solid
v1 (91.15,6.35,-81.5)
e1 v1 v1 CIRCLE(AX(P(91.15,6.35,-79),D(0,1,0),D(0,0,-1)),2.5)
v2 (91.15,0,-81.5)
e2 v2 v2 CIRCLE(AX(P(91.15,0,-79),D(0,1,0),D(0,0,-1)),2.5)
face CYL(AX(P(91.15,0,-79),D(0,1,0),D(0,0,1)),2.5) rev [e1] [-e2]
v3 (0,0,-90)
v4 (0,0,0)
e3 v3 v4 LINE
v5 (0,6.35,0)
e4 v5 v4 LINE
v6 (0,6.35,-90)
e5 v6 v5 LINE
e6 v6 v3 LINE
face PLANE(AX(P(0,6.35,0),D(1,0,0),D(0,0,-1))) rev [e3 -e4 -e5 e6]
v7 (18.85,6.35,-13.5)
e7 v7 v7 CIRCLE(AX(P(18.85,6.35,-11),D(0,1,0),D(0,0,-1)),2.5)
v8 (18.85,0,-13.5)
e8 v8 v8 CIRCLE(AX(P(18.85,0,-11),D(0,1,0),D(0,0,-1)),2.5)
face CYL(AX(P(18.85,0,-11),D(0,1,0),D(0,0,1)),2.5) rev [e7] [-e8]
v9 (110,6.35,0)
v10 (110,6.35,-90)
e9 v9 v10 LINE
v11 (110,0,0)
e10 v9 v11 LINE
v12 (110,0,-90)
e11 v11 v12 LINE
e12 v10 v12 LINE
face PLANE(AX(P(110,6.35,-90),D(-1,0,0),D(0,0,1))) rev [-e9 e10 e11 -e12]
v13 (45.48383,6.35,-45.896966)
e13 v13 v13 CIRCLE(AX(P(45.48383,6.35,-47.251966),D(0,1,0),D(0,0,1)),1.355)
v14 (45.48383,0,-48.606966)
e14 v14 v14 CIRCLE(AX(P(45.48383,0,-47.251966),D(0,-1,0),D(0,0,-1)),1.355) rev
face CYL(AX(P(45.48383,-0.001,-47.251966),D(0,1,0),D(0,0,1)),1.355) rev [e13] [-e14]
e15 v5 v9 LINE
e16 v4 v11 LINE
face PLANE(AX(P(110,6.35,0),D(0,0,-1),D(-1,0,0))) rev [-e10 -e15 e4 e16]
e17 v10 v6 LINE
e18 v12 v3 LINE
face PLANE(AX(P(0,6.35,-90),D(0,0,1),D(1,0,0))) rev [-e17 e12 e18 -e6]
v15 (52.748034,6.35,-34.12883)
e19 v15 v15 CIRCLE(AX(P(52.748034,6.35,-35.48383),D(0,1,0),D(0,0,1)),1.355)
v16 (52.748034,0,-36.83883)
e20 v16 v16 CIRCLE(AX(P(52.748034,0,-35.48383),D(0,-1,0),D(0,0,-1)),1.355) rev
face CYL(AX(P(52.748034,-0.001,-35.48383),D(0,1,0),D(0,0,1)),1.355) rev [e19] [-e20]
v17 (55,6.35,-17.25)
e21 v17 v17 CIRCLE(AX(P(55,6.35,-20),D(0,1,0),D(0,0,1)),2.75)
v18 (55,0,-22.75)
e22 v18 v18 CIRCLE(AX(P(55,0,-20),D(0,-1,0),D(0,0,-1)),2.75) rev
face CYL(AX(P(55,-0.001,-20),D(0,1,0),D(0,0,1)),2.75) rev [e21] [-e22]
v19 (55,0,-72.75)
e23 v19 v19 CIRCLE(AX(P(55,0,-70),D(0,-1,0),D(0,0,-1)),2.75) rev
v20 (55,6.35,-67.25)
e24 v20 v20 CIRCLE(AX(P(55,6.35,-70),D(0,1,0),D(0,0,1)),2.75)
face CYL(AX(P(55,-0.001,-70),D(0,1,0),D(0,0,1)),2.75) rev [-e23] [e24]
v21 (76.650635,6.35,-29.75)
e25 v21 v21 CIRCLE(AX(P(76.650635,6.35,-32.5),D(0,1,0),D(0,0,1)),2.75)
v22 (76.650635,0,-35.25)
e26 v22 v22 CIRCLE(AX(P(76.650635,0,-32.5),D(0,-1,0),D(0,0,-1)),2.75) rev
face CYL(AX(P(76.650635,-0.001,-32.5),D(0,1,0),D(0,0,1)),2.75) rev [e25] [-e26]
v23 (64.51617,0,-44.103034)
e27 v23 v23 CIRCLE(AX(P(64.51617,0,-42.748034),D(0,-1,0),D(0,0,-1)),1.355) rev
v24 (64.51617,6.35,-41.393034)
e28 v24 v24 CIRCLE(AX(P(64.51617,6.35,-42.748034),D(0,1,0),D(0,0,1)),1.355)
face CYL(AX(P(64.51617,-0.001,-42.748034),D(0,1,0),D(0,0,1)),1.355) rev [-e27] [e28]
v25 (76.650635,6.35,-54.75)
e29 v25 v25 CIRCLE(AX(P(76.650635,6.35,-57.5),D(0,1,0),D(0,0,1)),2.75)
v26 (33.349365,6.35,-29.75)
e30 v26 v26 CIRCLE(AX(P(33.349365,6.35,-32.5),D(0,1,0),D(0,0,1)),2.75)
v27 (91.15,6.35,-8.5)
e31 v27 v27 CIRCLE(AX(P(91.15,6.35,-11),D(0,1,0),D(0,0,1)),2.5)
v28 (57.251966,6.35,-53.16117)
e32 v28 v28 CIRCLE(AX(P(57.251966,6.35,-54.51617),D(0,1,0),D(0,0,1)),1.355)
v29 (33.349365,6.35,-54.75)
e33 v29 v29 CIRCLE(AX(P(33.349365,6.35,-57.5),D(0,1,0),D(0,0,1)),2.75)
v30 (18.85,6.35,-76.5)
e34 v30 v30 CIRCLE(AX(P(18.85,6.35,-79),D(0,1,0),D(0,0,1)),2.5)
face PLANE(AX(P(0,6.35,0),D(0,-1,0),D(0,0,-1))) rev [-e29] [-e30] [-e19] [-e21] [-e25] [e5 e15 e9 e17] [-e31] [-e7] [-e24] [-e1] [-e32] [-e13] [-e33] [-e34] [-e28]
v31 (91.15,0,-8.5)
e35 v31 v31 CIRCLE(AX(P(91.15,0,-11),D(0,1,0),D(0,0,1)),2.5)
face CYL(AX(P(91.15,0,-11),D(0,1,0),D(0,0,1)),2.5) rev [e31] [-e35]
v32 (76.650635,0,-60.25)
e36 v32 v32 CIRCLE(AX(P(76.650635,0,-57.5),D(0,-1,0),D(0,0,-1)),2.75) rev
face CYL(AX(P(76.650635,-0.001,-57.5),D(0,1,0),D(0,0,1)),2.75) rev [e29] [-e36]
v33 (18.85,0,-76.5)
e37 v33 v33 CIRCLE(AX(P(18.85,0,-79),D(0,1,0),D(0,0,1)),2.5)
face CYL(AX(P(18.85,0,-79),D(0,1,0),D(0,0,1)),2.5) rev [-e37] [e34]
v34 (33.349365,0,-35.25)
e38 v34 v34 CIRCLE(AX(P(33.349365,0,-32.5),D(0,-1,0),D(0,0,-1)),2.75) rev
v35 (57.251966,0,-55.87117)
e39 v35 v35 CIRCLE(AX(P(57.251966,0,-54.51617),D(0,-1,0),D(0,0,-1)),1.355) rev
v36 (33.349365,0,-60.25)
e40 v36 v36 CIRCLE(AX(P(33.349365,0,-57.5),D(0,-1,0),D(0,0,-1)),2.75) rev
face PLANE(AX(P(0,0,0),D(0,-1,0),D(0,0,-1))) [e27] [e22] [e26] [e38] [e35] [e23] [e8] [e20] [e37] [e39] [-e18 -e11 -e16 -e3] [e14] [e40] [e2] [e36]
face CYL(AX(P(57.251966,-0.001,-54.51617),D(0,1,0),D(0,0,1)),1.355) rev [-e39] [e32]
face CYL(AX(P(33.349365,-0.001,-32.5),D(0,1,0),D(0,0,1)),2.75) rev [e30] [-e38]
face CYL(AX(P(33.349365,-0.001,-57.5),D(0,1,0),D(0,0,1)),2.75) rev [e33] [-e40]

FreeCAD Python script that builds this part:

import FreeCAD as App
import Part
import Sketcher
from FreeCAD import Vector

doc = App.newDocument("Part")
params = doc.addObject("Spreadsheet::Sheet", "Params")
for row, (alias, value) in enumerate([
    ("sketch1_width", "110 mm"),
    ("sketch1_height", "90 mm"),
    ("pad1_length", "6.35 mm"),
    ("sketch2_diameter", "5 mm"),
    ("sketch3_diameter", "5.5 mm"),
    ("sketch4_diameter", "5.5 mm"),
    ("sketch5_diameter", "5.5 mm"),
    ("sketch6_diameter", "5.5 mm"),
    ("sketch7_diameter", "5.5 mm"),
    ("sketch8_diameter", "5.5 mm"),
    ("sketch9_diameter", "2.71 mm"),
    ("sketch10_diameter", "2.71 mm"),
    ("sketch11_diameter", "2.71 mm"),
    ("sketch12_diameter", "2.71 mm"),
], start=1):
    params.set(f"A{row}", alias)
    params.set(f"B{row}", "=" + value)
    params.setAlias(f"B{row}", alias)

body = doc.addObject("PartDesign::Body", "Body")

# Sketch on XZ plane
sketch1 = doc.addObject("Sketcher::SketchObject", "Sketch")
body.addObject(sketch1)
sketch1.AttachmentSupport = (doc.XZ_Plane, [""])
sketch1.MapMode = "FlatFace"
sketch1.addGeometry([
    Part.LineSegment(Vector(0, -90, 0), Vector(0, 0, 0)),
    Part.LineSegment(Vector(0, 0, 0), Vector(110, 0, 0)),
    Part.LineSegment(Vector(110, 0, 0), Vector(110, -90, 0)),
    Part.LineSegment(Vector(110, -90, 0), Vector(0, -90, 0)),
], False)
sketch1.addConstraint([
    Sketcher.Constraint("Coincident", 0, 2, 1, 1),
    Sketcher.Constraint("Coincident", 1, 2, 2, 1),
    Sketcher.Constraint("Coincident", 2, 2, 3, 1),
    Sketcher.Constraint("Coincident", 3, 2, 0, 1),
    Sketcher.Constraint("Vertical", 0),
    Sketcher.Constraint("Horizontal", 1),
    Sketcher.Constraint("Vertical", 2),
    Sketcher.Constraint("Horizontal", 3),
    Sketcher.Constraint("Coincident", 0, 2, -1, 1),
    Sketcher.Constraint("DistanceX", 1, 1, 1, 2, 110.0),
    Sketcher.Constraint("DistanceY", 0, 1, 0, 2, 90.0),
])
sketch1.setExpression("Constraints[9]", "Params.sketch1_width")
sketch1.setExpression("Constraints[10]", "Params.sketch1_height")
pad1 = doc.addObject("PartDesign::Pad", "Pad")
body.addObject(pad1)
pad1.Profile = sketch1
pad1.setExpression("Length", "Params.pad1_length")
pad1.Reversed = True

# Sketch on XZ plane
sketch2 = doc.addObject("Sketcher::SketchObject", "Sketch001")
body.addObject(sketch2)
sketch2.AttachmentSupport = (doc.XZ_Plane, [""])
sketch2.MapMode = "FlatFace"
sketch2.AttachmentOffset = App.Placement(Vector(0, 0, -6.35), App.Rotation())
sketch2.addGeometry([
    Part.Circle(Vector(18.9, -79, 0), Vector(0, 0, 1), 2.5),
    Part.Circle(Vector(18.9, -11, 0), Vector(0, 0, 1), 2.5),
    Part.Circle(Vector(91.2, -11, 0), Vector(0, 0, 1), 2.5),
    Part.Circle(Vector(91.2, -79, 0), Vector(0, 0, 1), 2.5),
], False)
sketch2.addConstraint([
    Sketcher.Constraint("Equal", 0, 1),
    Sketcher.Constraint("Equal", 1, 2),
    Sketcher.Constraint("Equal", 2, 3),
    Sketcher.Constraint("Horizontal", 1, 3, 2, 3),
    Sketcher.Constraint("Horizontal", 0, 3, 3, 3),
    Sketcher.Constraint("Vertical", 0, 3, 1, 3),
    Sketcher.Constraint("Vertical", 2, 3, 3, 3),
    Sketcher.Constraint("Diameter", 0, 5.0),
    Sketcher.Constraint("DistanceY", 0, 3, -1, 1, 79.0),
    Sketcher.Constraint("DistanceY", 1, 3, -1, 1, 11.0),
    Sketcher.Constraint("DistanceX", 1, 3, 2, 3, 72.3),
    Sketcher.Constraint("DistanceX", -1, 1, 0, 3, 18.85),
])
sketch2.setExpression("Constraints[7]", "Params.sketch2_diameter")
pocket1 = doc.addObject("PartDesign::Pocket", "Pocket")
body.addObject(pocket1)
pocket1.Profile = sketch2
pocket1.Type = "ThroughAll"
pocket1.Reversed = True

# Sketch on XZ plane
sketch3 = doc.addObject("Sketcher::SketchObject", "Sketch002")
body.addObject(sketch3)
sketch3.AttachmentSupport = (doc.XZ_Plane, [""])
sketch3.MapMode = "FlatFace"
sketch3.AttachmentOffset = App.Placement(Vector(0, 0, -6.35), App.Rotation())
sketch3.addGeometry(Part.Circle(Vector(55, -70, 0), Vector(0, 0, 1), 2.8), False)
sketch3.addConstraint([
    Sketcher.Constraint("Diameter", 0, 5.5),
    Sketcher.Constraint("DistanceX", -1, 1, 0, 3, 55.0),
    Sketcher.Constraint("DistanceY", 0, 3, -1, 1, 70.0),
])
sketch3.setExpression("Constraints[0]", "Params.sketch3_diameter")
pocket2 = doc.addObject("PartDesign::Pocket", "Pocket001")
body.addObject(pocket2)
pocket2.Profile = sketch3
pocket2.Type = "UpToFirst"
pocket2.Reversed = True

# Sketch on XZ plane
sketch4 = doc.addObject("Sketcher::SketchObject", "Sketch003")
body.addObject(sketch4)
sketch4.AttachmentSupport = (doc.XZ_Plane, [""])
sketch4.MapMode = "FlatFace"
sketch4.AttachmentOffset = App.Placement(Vector(0, 0, -6.35), App.Rotation())
sketch4.addGeometry(Part.Circle(Vector(76.7, -57.5, 0), Vector(0, 0, 1), 2.8), False)
sketch4.addConstraint([
    Sketcher.Constraint("Diameter", 0, 5.5),
    Sketcher.Constraint("DistanceY", 0, 3, -1, 1, 57.5),
    Sketcher.Constraint("DistanceX", -1, 1, 0, 3, 76.650635),
])
sketch4.setExpression("Constraints[0]", "Params.sketch4_diameter")
pocket3 = doc.addObject("PartDesign::Pocket", "Pocket002")
body.addObject(pocket3)
pocket3.Profile = sketch4
pocket3.Type = "UpToFirst"
pocket3.Reversed = True

# Sketch on XZ plane
sketch5 = doc.addObject("Sketcher::SketchObject", "Sketch004")
body.addObject(sketch5)
sketch5.AttachmentSupport = (doc.XZ_Plane, [""])
sketch5.MapMode = "FlatFace"
sketch5.AttachmentOffset = App.Placement(Vector(0, 0, -6.35), App.Rotation())
sketch5.addGeometry(Part.Circle(Vector(76.7, -32.5, 0), Vector(0, 0, 1), 2.8), False)
sketch5.addConstraint([
    Sketcher.Constraint("Diameter", 0, 5.5),
    Sketcher.Constraint("DistanceY", 0, 3, -1, 1, 32.5),
    Sketcher.Constraint("DistanceX", -1, 1, 0, 3, 76.650635),
])
sketch5.setExpression("Constraints[0]", "Params.sketch5_diameter")
pocket4 = doc.addObject("PartDesign::Pocket", "Pocket003")
body.addObject(pocket4)
pocket4.Profile = sketch5
pocket4.Type = "UpToFirst"
pocket4.Reversed = True

# Sketch on XZ plane
sketch6 = doc.addObject("Sketcher::SketchObject", "Sketch005")
body.addObject(sketch6)
sketch6.AttachmentSupport = (doc.XZ_Plane, [""])
sketch6.MapMode = "FlatFace"
sketch6.AttachmentOffset = App.Placement(Vector(0, 0, -6.35), App.Rotation())
sketch6.addGeometry(Part.Circle(Vector(55, -20, 0), Vector(0, 0, 1), 2.8), False)
sketch6.addConstraint([
    Sketcher.Constraint("Diameter", 0, 5.5),
    Sketcher.Constraint("DistanceX", -1, 1, 0, 3, 55.0),
    Sketcher.Constraint("DistanceY", 0, 3, -1, 1, 20.0),
])
sketch6.setExpression("Constraints[0]", "Params.sketch6_diameter")
pocket5 = doc.addObject("PartDesign::Pocket", "Pocket004")
body.addObject(pocket5)
pocket5.Profile = sketch6
pocket5.Type = "UpToFirst"
pocket5.Reversed = True

# Sketch on XZ plane
sketch7 = doc.addObject("Sketcher::SketchObject", "Sketch006")
body.addObject(sketch7)
sketch7.AttachmentSupport = (doc.XZ_Plane, [""])
sketch7.MapMode = "FlatFace"
sketch7.AttachmentOffset = App.Placement(Vector(0, 0, -6.35), App.Rotation())
sketch7.addGeometry(Part.Circle(Vector(33.3, -32.5, 0), Vector(0, 0, 1), 2.8), False)
sketch7.addConstraint([
    Sketcher.Constraint("Diameter", 0, 5.5),
    Sketcher.Constraint("DistanceY", 0, 3, -1, 1, 32.5),
    Sketcher.Constraint("DistanceX", -1, 1, 0, 3, 33.349365),
])
sketch7.setExpression("Constraints[0]", "Params.sketch7_diameter")
pocket6 = doc.addObject("PartDesign::Pocket", "Pocket005")
body.addObject(pocket6)
pocket6.Profile = sketch7
pocket6.Type = "UpToFirst"
pocket6.Reversed = True

# Sketch on XZ plane
sketch8 = doc.addObject("Sketcher::SketchObject", "Sketch007")
body.addObject(sketch8)
sketch8.AttachmentSupport = (doc.XZ_Plane, [""])
sketch8.MapMode = "FlatFace"
sketch8.AttachmentOffset = App.Placement(Vector(0, 0, -6.35), App.Rotation())
sketch8.addGeometry(Part.Circle(Vector(33.3, -57.5, 0), Vector(0, 0, 1), 2.8), False)
sketch8.addConstraint([
    Sketcher.Constraint("Diameter", 0, 5.5),
    Sketcher.Constraint("DistanceY", 0, 3, -1, 1, 57.5),
    Sketcher.Constraint("DistanceX", -1, 1, 0, 3, 33.349365),
])
sketch8.setExpression("Constraints[0]", "Params.sketch8_diameter")
pocket7 = doc.addObject("PartDesign::Pocket", "Pocket006")
body.addObject(pocket7)
pocket7.Profile = sketch8
pocket7.Type = "UpToFirst"
pocket7.Reversed = True

# Sketch on XZ plane
sketch9 = doc.addObject("Sketcher::SketchObject", "Sketch008")
body.addObject(sketch9)
sketch9.AttachmentSupport = (doc.XZ_Plane, [""])
sketch9.MapMode = "FlatFace"
sketch9.AttachmentOffset = App.Placement(Vector(0, 0, -6.35), App.Rotation())
sketch9.addGeometry(Part.Circle(Vector(64.5, -42.7, 0), Vector(0, 0, 1), 1.4), False)
sketch9.addConstraint([
    Sketcher.Constraint("Diameter", 0, 2.71),
    Sketcher.Constraint("DistanceX", -1, 1, 0, 3, 64.51617),
    Sketcher.Constraint("DistanceY", 0, 3, -1, 1, 42.748034),
])
sketch9.setExpression("Constraints[0]", "Params.sketch9_diameter")
pocket8 = doc.addObject("PartDesign::Pocket", "Pocket007")
body.addObject(pocket8)
pocket8.Profile = sketch9
pocket8.Type = "UpToFirst"
pocket8.Reversed = True

# Sketch on XZ plane
sketch10 = doc.addObject("Sketcher::SketchObject", "Sketch009")
body.addObject(sketch10)
sketch10.AttachmentSupport = (doc.XZ_Plane, [""])
sketch10.MapMode = "FlatFace"
sketch10.AttachmentOffset = App.Placement(Vector(0, 0, -6.35), App.Rotation())
sketch10.addGeometry(Part.Circle(Vector(45.5, -47.3, 0), Vector(0, 0, 1), 1.4), False)
sketch10.addConstraint([
    Sketcher.Constraint("Diameter", 0, 2.71),
    Sketcher.Constraint("DistanceX", -1, 1, 0, 3, 45.48383),
    Sketcher.Constraint("DistanceY", 0, 3, -1, 1, 47.251966),
])
sketch10.setExpression("Constraints[0]", "Params.sketch10_diameter")
pocket9 = doc.addObject("PartDesign::Pocket", "Pocket008")
body.addObject(pocket9)
pocket9.Profile = sketch10
pocket9.Type = "UpToFirst"
pocket9.Reversed = True

# Sketch on XZ plane
sketch11 = doc.addObject("Sketcher::SketchObject", "Sketch010")
body.addObject(sketch11)
sketch11.AttachmentSupport = (doc.XZ_Plane, [""])
sketch11.MapMode = "FlatFace"
sketch11.AttachmentOffset = App.Placement(Vector(0, 0, -6.35), App.Rotation())
sketch11.addGeometry(Part.Circle(Vector(57.3, -54.5, 0), Vector(0, 0, 1), 1.4), False)
sketch11.addConstraint([
    Sketcher.Constraint("Diameter", 0, 2.71),
    Sketcher.Constraint("DistanceY", 0, 3, -1, 1, 54.51617),
    Sketcher.Constraint("DistanceX", -1, 1, 0, 3, 57.251966),
])
sketch11.setExpression("Constraints[0]", "Params.sketch11_diameter")
pocket10 = doc.addObject("PartDesign::Pocket", "Pocket009")
body.addObject(pocket10)
pocket10.Profile = sketch11
pocket10.Type = "UpToFirst"
pocket10.Reversed = True

# Sketch on XZ plane
sketch12 = doc.addObject("Sketcher::SketchObject", "Sketch011")
body.addObject(sketch12)
sketch12.AttachmentSupport = (doc.XZ_Plane, [""])
sketch12.MapMode = "FlatFace"
sketch12.AttachmentOffset = App.Placement(Vector(0, 0, -6.35), App.Rotation())
sketch12.addGeometry(Part.Circle(Vector(52.7, -35.5, 0), Vector(0, 0, 1), 1.4), False)
sketch12.addConstraint([
    Sketcher.Constraint("Diameter", 0, 2.71),
    Sketcher.Constraint("DistanceY", 0, 3, -1, 1, 35.48383),
    Sketcher.Constraint("DistanceX", -1, 1, 0, 3, 52.748034),
])
sketch12.setExpression("Constraints[0]", "Params.sketch12_diameter")
pocket11 = doc.addObject("PartDesign::Pocket", "Pocket010")
body.addObject(pocket11)
pocket11.Profile = sketch12
pocket11.Type = "UpToFirst"
pocket11.Reversed = True

doc.recompute()
